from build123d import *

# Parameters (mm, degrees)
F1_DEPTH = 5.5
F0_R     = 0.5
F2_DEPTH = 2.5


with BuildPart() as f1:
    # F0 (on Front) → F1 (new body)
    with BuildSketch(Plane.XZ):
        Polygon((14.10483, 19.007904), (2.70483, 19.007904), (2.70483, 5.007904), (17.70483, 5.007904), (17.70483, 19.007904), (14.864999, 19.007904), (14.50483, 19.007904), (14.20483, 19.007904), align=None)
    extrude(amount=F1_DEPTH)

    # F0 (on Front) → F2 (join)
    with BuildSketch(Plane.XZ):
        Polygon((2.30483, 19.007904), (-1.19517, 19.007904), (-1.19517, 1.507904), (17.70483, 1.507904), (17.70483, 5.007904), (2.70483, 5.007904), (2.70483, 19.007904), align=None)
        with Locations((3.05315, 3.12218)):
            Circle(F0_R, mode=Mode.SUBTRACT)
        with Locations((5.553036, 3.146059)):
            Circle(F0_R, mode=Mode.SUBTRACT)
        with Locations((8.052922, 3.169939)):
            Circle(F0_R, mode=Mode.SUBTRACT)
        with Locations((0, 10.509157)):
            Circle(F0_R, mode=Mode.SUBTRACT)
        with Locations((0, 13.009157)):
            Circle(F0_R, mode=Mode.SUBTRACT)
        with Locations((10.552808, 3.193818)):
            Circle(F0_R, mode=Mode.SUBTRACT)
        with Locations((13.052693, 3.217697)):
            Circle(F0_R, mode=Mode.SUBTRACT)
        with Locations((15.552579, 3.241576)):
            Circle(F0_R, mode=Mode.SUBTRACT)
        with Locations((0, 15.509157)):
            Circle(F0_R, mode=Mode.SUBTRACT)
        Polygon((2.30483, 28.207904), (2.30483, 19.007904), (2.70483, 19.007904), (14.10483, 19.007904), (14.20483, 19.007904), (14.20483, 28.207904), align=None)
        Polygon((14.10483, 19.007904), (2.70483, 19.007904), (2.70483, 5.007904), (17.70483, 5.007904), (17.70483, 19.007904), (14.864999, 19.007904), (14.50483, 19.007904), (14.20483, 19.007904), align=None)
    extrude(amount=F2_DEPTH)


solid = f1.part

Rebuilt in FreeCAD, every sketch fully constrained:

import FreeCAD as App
import Part
import Sketcher
from FreeCAD import Vector

doc = App.newDocument("Part")
body = doc.addObject("PartDesign::Body", "Body")

# Sketch on XZ plane
sketch1 = doc.addObject("Sketcher::SketchObject", "Sketch")
body.addObject(sketch1)
sketch1.AttachmentSupport = (doc.XZ_Plane, [""])
sketch1.MapMode = "FlatFace"
sketch1.addGeometry([
    Part.LineSegment(Vector(3, 19, 0), Vector(3, 5, 0)),
    Part.LineSegment(Vector(3, 5, 0), Vector(18, 5, 0)),
    Part.LineSegment(Vector(18, 5, 0), Vector(18, 19, 0)),
    Part.LineSegment(Vector(18, 19, 0), Vector(3, 19, 0)),
], False)
sketch1.addConstraint([
    Sketcher.Constraint("Coincident", 0, 2, 1, 1),
    Sketcher.Constraint("Coincident", 1, 2, 2, 1),
    Sketcher.Constraint("Coincident", 2, 2, 3, 1),
    Sketcher.Constraint("Coincident", 3, 2, 0, 1),
    Sketcher.Constraint("Vertical", 0),
    Sketcher.Constraint("Horizontal", 1),
    Sketcher.Constraint("Vertical", 2),
    Sketcher.Constraint("Horizontal", 3),
    Sketcher.Constraint("DistanceX", 1, 1, 1, 2, 15.0),
    Sketcher.Constraint("DistanceY", 0, 2, 0, 1, 14.0),
    Sketcher.Constraint("DistanceX", -1, 1, 0, 2, 2.70483),
    Sketcher.Constraint("DistanceY", -1, 1, 0, 2, 5.007904),
])
pad1 = doc.addObject("PartDesign::Pad", "Pad")
body.addObject(pad1)
pad1.Profile = sketch1
pad1.Length = 5.5

# Sketch on XZ plane
sketch2 = doc.addObject("Sketcher::SketchObject", "Sketch001")
body.addObject(sketch2)
sketch2.AttachmentSupport = (doc.XZ_Plane, [""])
sketch2.MapMode = "FlatFace"
sketch2.addGeometry([
    Part.LineSegment(Vector(-1.2, 19, 0), Vector(-1.2, 1.5, 0)),  # 0
    Part.LineSegment(Vector(-1.2, 1.5, 0), Vector(17.7, 1.5, 0)),  # 1
    Part.LineSegment(Vector(17.7, 1.5, 0), Vector(17.7, 19, 0)),  # 2
    Part.LineSegment(Vector(17.7, 19, 0), Vector(14.2, 19, 0)),  # 3
    Part.LineSegment(Vector(14.2, 19, 0), Vector(14.2, 28.2, 0)),  # 4
    Part.LineSegment(Vector(14.2, 28.2, 0), Vector(2.3, 28.2, 0)),  # 5
    Part.LineSegment(Vector(2.3, 28.2, 0), Vector(2.3, 19, 0)),  # 6
    Part.LineSegment(Vector(2.3, 19, 0), Vector(-1.2, 19, 0)),  # 7
    Part.Circle(Vector(3.1, 3.1, 0), Vector(0, 0, 1), 0.5),  # 8
    Part.Circle(Vector(5.6, 3.1, 0), Vector(0, 0, 1), 0.5),  # 9
    Part.Circle(Vector(8.1, 3.2, 0), Vector(0, 0, 1), 0.5),  # 10
    Part.Circle(Vector(10.6, 3.2, 0), Vector(0, 0, 1), 0.5),  # 11
    Part.Circle(Vector(13.1, 3.2, 0), Vector(0, 0, 1), 0.5),  # 12
    Part.Circle(Vector(15.6, 3.2, 0), Vector(0, 0, 1), 0.5),  # 13
    Part.Circle(Vector(0, 10.5, 0), Vector(0, 0, 1), 0.5),  # 14
    Part.Circle(Vector(0, 13, 0), Vector(0, 0, 1), 0.5),  # 15
    Part.Circle(Vector(0, 15.5, 0), Vector(0, 0, 1), 0.5),  # 16
], False)
sketch2.addConstraint([
    Sketcher.Constraint("Coincident", 0, 2, 1, 1),
    Sketcher.Constraint("Coincident", 1, 2, 2, 1),
    Sketcher.Constraint("Coincident", 2, 2, 3, 1),
    Sketcher.Constraint("Coincident", 3, 2, 4, 1),
    Sketcher.Constraint("Coincident", 4, 2, 5, 1),
    Sketcher.Constraint("Coincident", 5, 2, 6, 1),
    Sketcher.Constraint("Coincident", 6, 2, 7, 1),
    Sketcher.Constraint("Coincident", 7, 2, 0, 1),
    Sketcher.Constraint("Vertical", 0),
    Sketcher.Constraint("Horizontal", 1),
    Sketcher.Constraint("Vertical", 2),
    Sketcher.Constraint("Horizontal", 3),
    Sketcher.Constraint("Vertical", 4),
    Sketcher.Constraint("Horizontal", 5),
    Sketcher.Constraint("Vertical", 6),
    Sketcher.Constraint("Horizontal", 7),
    Sketcher.Constraint("Equal", 8, 9),
    Sketcher.Constraint("Equal", 9, 10),
    Sketcher.Constraint("Equal", 10, 11),
    Sketcher.Constraint("Equal", 11, 12),
    Sketcher.Constraint("Equal", 12, 13),
    Sketcher.Constraint("Equal", 13, 14),
    Sketcher.Constraint("Equal", 14, 15),
    Sketcher.Constraint("Equal", 15, 16),
    Sketcher.Constraint("PointOnObject", 14, 3, -2),
    Sketcher.Constraint("PointOnObject", 15, 3, -2),
    Sketcher.Constraint("PointOnObject", 16, 3, -2),
    Sketcher.Constraint("Horizontal", 3, 2, 6, 2),
    Sketcher.Constraint("Equal", 3, 7),
    Sketcher.Constraint("Diameter", 8, 1.0),
    Sketcher.Constraint("DistanceX", 1, 1, 1, 2, 18.9),
    Sketcher.Constraint("DistanceX", 3, 2, 3, 1, 3.5),
    Sketcher.Constraint("DistanceY", 0, 2, 0, 1, 17.5),
    Sketcher.Constraint("DistanceY", 4, 1, 4, 2, 9.2),
    Sketcher.Constraint("DistanceY", 14, 3, 16, 3, 5.0),
    Sketcher.Constraint("DistanceY", 14, 3, 15, 3, 2.5),
    Sketcher.Constraint("DistanceY", 9, 3, 15, 3, 9.863098),
    Sketcher.Constraint("DistanceX", -1, 1, 8, 3, 3.05315),
    Sketcher.Constraint("DistanceY", -1, 1, 8, 3, 3.12218),
    Sketcher.Constraint("DistanceY", -1, 1, 9, 3, 3.146059),
    Sketcher.Constraint("DistanceY", -1, 1, 10, 3, 3.169939),
    Sketcher.Constraint("DistanceX", -1, 1, 11, 3, 10.552808),
    Sketcher.Constraint("DistanceX", -1, 1, 13, 3, 15.552579),
    Sketcher.Constraint("DistanceX", 0, 2, -1, 1, 1.19517),
    Sketcher.Constraint("DistanceY", 10, 3, 11, 3, 0.023879),
    Sketcher.Constraint("DistanceY", 11, 3, 12, 3, 0.023879),
    Sketcher.Constraint("DistanceX", 10, 3, 12, 3, 4.999771),
    Sketcher.Constraint("DistanceY", 12, 3, 13, 3, 0.023879),
    Sketcher.Constraint("DistanceY", 1, 2, 13, 3, 1.733672),
    Sketcher.Constraint("DistanceX", -1, 1, 9, 3, 5.553036),
    Sketcher.Constraint("DistanceX", -1, 1, 10, 3, 8.052922),
])
pad2 = doc.addObject("PartDesign::Pad", "Pad001")
body.addObject(pad2)
pad2.Profile = sketch2
pad2.Length = 2.5

doc.recompute()
